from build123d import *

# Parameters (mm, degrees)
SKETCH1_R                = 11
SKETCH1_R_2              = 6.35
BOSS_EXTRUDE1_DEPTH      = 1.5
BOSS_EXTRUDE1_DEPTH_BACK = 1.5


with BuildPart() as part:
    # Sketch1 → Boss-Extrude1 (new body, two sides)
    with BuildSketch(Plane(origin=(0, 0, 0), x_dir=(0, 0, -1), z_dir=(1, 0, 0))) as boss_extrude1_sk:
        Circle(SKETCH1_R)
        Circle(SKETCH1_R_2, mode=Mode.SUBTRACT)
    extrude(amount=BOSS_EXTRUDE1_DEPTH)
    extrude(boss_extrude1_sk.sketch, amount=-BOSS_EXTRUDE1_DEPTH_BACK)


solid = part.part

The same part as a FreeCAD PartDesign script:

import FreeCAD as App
import Part
import Sketcher
from FreeCAD import Vector
Q = App.Units.Quantity

doc = App.newDocument("Part")
body = doc.addObject("PartDesign::Body", "Body")

sketch1 = body.newObject("Sketcher::SketchObject", "Sketch")
sketch1.AttachmentSupport = (doc.getObject("YZ_Plane"), [""])
sketch1.MapMode = "FlatFace"
sketch1.addGeometry(Part.Circle(Vector(0, 0, 0), Vector(0, 0, 1), 11), False)
sketch1.addGeometry(Part.Circle(Vector(0, 0, 0), Vector(0, 0, 1), 6.35), False)
sketch1.addConstraint(Sketcher.Constraint("Coincident", 0, 3, -1, 1))
sketch1.addConstraint(Sketcher.Constraint("Coincident", 1, 3, -1, 1))
sketch1.addConstraint(Sketcher.Constraint("Diameter", 0, Q("22 mm")))
sketch1.addConstraint(Sketcher.Constraint("Diameter", 1, Q("12.7 mm")))
pad1 = body.newObject("PartDesign::Pad", "Pad")
pad1.Profile = sketch1
pad1.Type = "TwoLengths"
pad1.Length = 1.5
pad1.Length2 = 1.5

doc.recompute()
